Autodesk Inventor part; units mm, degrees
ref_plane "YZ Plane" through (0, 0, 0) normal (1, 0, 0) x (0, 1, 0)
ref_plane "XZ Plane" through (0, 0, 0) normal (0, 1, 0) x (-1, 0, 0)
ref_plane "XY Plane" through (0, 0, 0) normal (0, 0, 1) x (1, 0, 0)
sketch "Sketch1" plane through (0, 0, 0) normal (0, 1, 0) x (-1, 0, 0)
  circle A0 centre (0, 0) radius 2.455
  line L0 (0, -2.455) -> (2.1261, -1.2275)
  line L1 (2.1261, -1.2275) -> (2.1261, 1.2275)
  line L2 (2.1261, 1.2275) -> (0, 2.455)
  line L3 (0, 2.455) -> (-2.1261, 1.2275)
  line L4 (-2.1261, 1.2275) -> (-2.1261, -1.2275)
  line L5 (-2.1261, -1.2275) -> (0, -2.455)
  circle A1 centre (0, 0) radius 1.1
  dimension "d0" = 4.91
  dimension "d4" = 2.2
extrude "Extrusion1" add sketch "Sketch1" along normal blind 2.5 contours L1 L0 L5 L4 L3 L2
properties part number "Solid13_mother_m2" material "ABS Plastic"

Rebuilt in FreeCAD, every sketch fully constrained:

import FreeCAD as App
import Part
import Sketcher
Q = App.Units.Quantity

doc = App.newDocument("Part")
body = doc.addObject("PartDesign::Body", "Body")

# Sketch on XZ plane
sketch1 = doc.addObject("Sketcher::SketchObject", "Sketch")
body.addObject(sketch1)
sketch1.AttachmentSupport = (doc.XZ_Plane, [""])
sketch1.MapMode = "FlatFace"
sketch1.addGeometry([
    Part.LineSegment(App.Vector(-2.1, -1.2, 0), App.Vector(-2.1, 1.2, 0)),  # 0
    Part.LineSegment(App.Vector(-2.1, 1.2, 0), App.Vector(0, 2.5, 0)),  # 1
    Part.LineSegment(App.Vector(0, 2.5, 0), App.Vector(2.1, 1.2, 0)),  # 2
    Part.LineSegment(App.Vector(2.1, 1.2, 0), App.Vector(2.1, -1.2, 0)),  # 3
    Part.LineSegment(App.Vector(2.1, -1.2, 0), App.Vector(0, -2.5, 0)),  # 4
    Part.LineSegment(App.Vector(0, -2.5, 0), App.Vector(-2.1, -1.2, 0)),  # 5
    Part.Circle(App.Vector(0, 0, 0), App.Vector(0, 0, 1), 1.1),  # 6
], False)
sketch1.addConstraint([
    Sketcher.Constraint("Coincident", 0, 2, 1, 1),
    Sketcher.Constraint("Coincident", 1, 2, 2, 1),
    Sketcher.Constraint("Coincident", 2, 2, 3, 1),
    Sketcher.Constraint("Coincident", 3, 2, 4, 1),
    Sketcher.Constraint("Coincident", 4, 2, 5, 1),
    Sketcher.Constraint("Coincident", 5, 2, 0, 1),
    Sketcher.Constraint("Vertical", 0),
    Sketcher.Constraint("Vertical", 3),
    Sketcher.Constraint("Coincident", 6, 3, -1, 1),
    Sketcher.Constraint("Symmetric", 0, 2, 3, 2, -1, 1),
    Sketcher.Constraint("Symmetric", 1, 2, 4, 2, -1, 1),
    Sketcher.Constraint("PointOnObject", 1, 2, -2),
    Sketcher.Constraint("Parallel", 2, 5),
    Sketcher.Constraint("Horizontal", 0, 2, 2, 2),
    Sketcher.Constraint("Diameter", 6, Q("2.2 mm")),
    Sketcher.Constraint("Angle", 1, Q("30 deg")),
    Sketcher.Constraint("DistanceY", 4, 2, 1, 2, Q("4.91 mm")),
    Sketcher.Constraint("DistanceY", 0, 1, 0, 2, Q("2.455 mm")),
])
pad1 = doc.addObject("PartDesign::Pad", "Pad")
body.addObject(pad1)
pad1.Profile = sketch1
pad1.Length = 2.5
pad1.Reversed = True

doc.recompute()
